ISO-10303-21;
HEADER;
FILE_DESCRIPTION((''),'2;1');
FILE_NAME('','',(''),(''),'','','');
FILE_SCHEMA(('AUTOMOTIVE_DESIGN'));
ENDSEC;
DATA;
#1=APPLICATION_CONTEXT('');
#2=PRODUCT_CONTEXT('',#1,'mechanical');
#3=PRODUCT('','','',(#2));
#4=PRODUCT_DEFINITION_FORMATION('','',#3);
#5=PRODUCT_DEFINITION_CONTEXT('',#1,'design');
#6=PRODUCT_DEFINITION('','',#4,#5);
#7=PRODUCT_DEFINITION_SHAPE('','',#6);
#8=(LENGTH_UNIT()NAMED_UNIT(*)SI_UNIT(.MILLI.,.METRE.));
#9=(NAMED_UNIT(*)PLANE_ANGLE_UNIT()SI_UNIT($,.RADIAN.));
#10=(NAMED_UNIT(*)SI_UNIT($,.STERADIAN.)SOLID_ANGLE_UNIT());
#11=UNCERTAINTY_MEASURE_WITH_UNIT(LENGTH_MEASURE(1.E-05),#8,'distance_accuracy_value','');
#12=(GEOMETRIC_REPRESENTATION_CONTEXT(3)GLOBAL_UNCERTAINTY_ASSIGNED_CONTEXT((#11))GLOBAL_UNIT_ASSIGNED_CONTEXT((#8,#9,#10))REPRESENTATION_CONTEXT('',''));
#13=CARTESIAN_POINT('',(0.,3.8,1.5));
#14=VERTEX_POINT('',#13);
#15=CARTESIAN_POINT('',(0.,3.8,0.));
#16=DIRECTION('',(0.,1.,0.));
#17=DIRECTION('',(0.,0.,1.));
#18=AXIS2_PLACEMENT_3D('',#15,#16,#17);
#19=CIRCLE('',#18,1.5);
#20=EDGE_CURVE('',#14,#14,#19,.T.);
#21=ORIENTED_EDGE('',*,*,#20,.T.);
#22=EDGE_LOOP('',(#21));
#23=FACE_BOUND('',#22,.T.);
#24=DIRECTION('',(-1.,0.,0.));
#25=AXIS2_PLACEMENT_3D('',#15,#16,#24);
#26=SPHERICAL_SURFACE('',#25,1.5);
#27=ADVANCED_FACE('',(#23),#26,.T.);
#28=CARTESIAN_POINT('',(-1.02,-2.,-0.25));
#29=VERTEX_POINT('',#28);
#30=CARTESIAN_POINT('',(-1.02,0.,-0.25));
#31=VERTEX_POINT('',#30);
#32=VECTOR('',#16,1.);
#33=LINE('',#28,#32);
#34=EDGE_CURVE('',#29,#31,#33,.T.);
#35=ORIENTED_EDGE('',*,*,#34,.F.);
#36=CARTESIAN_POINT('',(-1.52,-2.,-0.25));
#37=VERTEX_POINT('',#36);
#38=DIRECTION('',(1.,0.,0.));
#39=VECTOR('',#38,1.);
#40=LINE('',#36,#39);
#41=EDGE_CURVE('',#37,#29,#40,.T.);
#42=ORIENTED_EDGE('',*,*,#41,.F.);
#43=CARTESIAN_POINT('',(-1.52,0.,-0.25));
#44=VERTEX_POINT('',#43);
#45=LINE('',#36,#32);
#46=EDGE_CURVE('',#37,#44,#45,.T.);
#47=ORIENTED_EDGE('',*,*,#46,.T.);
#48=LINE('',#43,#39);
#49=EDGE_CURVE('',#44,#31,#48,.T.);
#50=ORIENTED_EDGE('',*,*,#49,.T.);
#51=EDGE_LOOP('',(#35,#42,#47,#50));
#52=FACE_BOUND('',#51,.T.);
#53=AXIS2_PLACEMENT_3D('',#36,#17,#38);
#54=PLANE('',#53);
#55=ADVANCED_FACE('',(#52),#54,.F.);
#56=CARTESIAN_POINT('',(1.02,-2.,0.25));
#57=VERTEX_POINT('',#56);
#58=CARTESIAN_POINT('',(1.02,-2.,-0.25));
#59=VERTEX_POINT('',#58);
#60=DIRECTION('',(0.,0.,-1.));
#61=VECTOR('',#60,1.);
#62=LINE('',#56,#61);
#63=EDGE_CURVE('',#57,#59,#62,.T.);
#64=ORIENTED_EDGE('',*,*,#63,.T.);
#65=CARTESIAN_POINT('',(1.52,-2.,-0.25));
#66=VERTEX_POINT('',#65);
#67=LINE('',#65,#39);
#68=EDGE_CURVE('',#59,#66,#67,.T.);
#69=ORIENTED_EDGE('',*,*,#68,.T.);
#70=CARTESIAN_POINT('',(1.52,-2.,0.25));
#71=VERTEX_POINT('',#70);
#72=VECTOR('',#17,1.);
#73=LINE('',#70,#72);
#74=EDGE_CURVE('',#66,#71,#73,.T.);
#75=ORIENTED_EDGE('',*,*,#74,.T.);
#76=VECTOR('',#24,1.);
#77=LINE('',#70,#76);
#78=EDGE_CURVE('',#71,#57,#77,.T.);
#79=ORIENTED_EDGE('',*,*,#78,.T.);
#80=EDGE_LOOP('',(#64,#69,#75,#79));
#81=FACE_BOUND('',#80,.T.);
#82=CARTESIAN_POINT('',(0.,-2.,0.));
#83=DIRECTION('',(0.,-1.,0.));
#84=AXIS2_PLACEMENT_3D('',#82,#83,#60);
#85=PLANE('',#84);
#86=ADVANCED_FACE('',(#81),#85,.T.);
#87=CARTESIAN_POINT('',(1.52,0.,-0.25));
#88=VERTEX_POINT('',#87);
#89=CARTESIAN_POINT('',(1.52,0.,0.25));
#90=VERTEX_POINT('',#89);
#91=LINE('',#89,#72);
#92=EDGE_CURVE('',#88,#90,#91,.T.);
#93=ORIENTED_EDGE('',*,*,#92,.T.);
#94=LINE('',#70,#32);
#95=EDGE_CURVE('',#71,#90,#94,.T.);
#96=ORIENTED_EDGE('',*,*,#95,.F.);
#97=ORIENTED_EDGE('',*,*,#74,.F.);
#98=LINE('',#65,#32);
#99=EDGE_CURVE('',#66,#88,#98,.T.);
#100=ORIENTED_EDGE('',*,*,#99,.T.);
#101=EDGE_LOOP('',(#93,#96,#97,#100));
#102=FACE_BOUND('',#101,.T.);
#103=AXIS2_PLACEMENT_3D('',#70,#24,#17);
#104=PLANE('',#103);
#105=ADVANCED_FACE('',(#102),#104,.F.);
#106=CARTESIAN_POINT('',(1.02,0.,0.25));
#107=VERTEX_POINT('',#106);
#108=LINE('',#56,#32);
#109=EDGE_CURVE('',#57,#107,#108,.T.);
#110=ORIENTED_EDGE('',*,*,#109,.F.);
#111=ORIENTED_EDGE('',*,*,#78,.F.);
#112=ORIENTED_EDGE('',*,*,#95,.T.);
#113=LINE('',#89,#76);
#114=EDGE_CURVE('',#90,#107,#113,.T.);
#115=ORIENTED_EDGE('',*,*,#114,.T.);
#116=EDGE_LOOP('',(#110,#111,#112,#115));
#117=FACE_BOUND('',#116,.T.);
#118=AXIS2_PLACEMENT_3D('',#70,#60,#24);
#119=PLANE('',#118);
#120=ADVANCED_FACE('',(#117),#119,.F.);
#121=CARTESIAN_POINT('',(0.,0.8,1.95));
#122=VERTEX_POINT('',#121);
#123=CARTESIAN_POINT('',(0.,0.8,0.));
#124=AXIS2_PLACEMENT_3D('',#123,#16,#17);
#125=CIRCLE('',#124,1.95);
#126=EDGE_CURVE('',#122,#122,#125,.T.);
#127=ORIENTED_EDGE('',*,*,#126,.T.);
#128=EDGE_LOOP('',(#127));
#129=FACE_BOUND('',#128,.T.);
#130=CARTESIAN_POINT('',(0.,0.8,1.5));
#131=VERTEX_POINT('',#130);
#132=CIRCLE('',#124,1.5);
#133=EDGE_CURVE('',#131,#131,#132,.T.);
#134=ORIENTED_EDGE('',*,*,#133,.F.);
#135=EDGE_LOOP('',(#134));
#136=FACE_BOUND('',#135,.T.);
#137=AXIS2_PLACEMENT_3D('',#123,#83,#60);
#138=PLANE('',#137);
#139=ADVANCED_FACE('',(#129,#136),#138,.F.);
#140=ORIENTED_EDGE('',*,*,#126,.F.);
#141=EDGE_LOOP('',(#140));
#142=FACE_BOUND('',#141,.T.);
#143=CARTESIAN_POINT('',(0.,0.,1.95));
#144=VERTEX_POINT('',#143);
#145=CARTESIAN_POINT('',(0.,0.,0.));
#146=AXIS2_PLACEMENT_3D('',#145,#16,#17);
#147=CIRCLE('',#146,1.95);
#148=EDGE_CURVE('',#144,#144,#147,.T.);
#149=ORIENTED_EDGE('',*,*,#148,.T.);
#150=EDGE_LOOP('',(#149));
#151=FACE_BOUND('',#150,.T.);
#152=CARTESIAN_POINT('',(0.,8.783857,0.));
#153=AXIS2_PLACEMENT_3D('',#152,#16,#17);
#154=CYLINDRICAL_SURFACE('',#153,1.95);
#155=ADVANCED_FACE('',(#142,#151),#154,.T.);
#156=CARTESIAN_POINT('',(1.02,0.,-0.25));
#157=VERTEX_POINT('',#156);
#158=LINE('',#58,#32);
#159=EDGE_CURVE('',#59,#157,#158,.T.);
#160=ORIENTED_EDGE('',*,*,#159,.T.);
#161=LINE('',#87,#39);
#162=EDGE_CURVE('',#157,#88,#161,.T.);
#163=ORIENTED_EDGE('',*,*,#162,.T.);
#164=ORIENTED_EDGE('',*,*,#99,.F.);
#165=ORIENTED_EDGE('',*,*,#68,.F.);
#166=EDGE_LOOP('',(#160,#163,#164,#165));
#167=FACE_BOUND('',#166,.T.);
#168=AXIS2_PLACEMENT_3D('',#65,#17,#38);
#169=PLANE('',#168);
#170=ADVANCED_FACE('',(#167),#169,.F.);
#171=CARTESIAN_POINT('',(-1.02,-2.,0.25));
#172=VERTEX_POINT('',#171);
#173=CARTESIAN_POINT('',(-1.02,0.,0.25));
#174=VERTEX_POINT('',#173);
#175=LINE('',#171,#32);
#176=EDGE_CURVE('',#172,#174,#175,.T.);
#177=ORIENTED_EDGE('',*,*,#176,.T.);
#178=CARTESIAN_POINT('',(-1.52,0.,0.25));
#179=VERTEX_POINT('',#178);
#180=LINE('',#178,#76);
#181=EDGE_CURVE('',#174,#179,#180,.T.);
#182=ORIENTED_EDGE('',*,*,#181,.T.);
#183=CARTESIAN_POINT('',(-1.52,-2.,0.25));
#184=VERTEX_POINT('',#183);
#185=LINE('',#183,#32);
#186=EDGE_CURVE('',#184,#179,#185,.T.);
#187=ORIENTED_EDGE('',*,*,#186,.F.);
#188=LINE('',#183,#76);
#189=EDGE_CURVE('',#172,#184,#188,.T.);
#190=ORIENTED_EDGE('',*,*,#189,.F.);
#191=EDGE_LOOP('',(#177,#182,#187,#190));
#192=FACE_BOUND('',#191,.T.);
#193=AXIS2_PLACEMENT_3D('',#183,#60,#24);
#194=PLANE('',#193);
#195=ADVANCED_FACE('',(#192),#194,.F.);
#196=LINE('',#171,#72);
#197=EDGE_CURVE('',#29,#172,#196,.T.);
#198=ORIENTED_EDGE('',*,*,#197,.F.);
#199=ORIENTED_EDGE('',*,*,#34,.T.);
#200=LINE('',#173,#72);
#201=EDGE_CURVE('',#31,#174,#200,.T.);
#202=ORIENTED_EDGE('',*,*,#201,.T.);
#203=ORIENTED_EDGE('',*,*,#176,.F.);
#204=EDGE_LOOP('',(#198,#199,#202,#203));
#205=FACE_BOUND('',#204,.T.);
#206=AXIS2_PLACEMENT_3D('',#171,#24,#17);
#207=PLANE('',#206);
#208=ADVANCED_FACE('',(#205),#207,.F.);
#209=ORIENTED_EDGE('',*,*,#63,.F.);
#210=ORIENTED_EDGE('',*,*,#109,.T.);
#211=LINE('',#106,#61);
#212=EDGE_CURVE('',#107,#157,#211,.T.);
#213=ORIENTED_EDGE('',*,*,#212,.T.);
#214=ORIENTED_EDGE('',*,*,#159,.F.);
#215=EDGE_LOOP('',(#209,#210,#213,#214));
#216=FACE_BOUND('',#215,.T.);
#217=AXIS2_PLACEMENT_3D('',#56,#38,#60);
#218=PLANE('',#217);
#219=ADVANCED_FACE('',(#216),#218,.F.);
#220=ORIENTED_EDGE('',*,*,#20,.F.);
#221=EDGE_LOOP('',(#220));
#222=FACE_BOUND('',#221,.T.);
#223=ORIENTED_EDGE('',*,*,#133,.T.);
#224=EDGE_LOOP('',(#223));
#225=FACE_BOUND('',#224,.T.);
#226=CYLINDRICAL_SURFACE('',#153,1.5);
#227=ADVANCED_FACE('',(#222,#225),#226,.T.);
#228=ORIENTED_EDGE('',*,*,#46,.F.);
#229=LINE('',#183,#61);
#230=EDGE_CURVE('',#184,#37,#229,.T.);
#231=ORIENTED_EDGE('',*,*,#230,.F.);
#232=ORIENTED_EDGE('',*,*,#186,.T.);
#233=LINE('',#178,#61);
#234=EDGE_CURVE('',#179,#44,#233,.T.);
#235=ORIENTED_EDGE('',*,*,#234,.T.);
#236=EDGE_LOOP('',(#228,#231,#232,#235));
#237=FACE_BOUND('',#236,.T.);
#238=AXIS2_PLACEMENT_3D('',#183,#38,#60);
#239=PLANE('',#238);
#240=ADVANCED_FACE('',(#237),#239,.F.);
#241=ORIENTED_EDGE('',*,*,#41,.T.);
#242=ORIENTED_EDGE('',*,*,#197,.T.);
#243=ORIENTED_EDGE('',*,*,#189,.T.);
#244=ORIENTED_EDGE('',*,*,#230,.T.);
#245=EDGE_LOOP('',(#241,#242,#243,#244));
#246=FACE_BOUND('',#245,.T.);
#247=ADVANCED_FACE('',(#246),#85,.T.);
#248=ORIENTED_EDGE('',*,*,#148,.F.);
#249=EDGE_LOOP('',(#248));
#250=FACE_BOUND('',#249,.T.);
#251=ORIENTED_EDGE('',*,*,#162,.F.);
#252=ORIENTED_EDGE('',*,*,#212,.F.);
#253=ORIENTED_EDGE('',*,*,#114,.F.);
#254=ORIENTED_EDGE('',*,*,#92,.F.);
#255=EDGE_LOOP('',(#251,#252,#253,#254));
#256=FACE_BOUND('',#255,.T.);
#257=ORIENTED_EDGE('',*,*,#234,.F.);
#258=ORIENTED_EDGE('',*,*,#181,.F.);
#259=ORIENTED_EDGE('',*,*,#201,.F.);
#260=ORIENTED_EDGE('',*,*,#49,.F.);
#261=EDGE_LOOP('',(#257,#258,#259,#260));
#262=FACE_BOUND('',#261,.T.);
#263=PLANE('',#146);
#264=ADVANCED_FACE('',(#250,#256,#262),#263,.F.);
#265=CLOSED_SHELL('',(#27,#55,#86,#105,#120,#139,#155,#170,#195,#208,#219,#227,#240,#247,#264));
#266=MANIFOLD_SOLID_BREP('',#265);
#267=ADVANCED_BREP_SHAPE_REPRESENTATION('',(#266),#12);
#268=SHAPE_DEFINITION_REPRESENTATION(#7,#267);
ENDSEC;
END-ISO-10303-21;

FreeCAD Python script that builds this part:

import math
import FreeCAD as App
import Part
import Sketcher

V = App.Vector
Q = App.Units.Quantity


def add_polygon(sketch, points):
    """Adds a closed chain of lines whose ends are joined by coincident constraints."""
    first, n = sketch.GeometryCount, len(points)
    for a, b in zip(points, points[1:] + points[:1]):
        sketch.addGeometry(Part.LineSegment(App.Vector(*a, 0), App.Vector(*b, 0)), False)
    for i in range(n):
        sketch.addConstraint(Sketcher.Constraint("Coincident", first + i, 2, first + (i + 1) % n, 1))

doc = App.newDocument("Part")
body = doc.addObject("PartDesign::Body", "Body")

# Sketch on XY plane
sketch1 = body.newObject("Sketcher::SketchObject", "Sketch")
sketch1.AttachmentSupport = (doc.getObject("XY_Plane"), [""])
sketch1.MapMode = "FlatFace"
sketch1.addGeometry(Part.ArcOfCircle(Part.Circle(V(0, 3.8, 0), V(0, 0, 1), 1.5), math.radians(90), math.radians(180)), False)
sketch1.addGeometry(Part.LineSegment(V(-1.5, 3.8, 0), V(-1.5, 0.8, 0)), False)
sketch1.addGeometry(Part.LineSegment(V(-1.5, 0.8, 0), V(-1.95, 0.8, 0)), False)
sketch1.addGeometry(Part.LineSegment(V(-1.95, 0.8, 0), V(-1.95, 0, 0)), False)
sketch1.addGeometry(Part.LineSegment(V(-1.95, 0, 0), V(0, 0, 0)), False)
sketch1.addGeometry(Part.LineSegment(V(0, 0, 0), V(0, 5.3, 0)), False)
sketch1.addConstraint(Sketcher.Constraint("Tangent", 0, 2, 1, 1))
sketch1.addConstraint(Sketcher.Constraint("Coincident", 1, 2, 2, 1))
sketch1.addConstraint(Sketcher.Constraint("Coincident", 2, 2, 3, 1))
sketch1.addConstraint(Sketcher.Constraint("Coincident", 3, 2, 4, 1))
sketch1.addConstraint(Sketcher.Constraint("Coincident", 4, 2, 5, 1))
sketch1.addConstraint(Sketcher.Constraint("Coincident", 5, 2, 0, 1))
sketch1.addConstraint(Sketcher.Constraint("Vertical", 1))
sketch1.addConstraint(Sketcher.Constraint("Horizontal", 2))
sketch1.addConstraint(Sketcher.Constraint("Vertical", 3))
sketch1.addConstraint(Sketcher.Constraint("Horizontal", 4))
sketch1.addConstraint(Sketcher.Constraint("Vertical", 5))
sketch1.addConstraint(Sketcher.Constraint("Coincident", 4, 2, -1, 1))
sketch1.addConstraint(Sketcher.Constraint("PointOnObject", 0, 3, -2))
sketch1.addConstraint(Sketcher.Constraint("Radius", 0, Q("1.5 mm")))
sketch1.addConstraint(Sketcher.Constraint("DistanceY", 1, 2, 1, 1, Q("3 mm")))
sketch1.addConstraint(Sketcher.Constraint("DistanceY", 3, 2, 3, 1, Q("0.8 mm")))
sketch1.addConstraint(Sketcher.Constraint("DistanceX", 2, 2, 2, 1, Q("0.45 mm")))
revolution = body.newObject("PartDesign::Revolution", "Revolution")
revolution.Profile = sketch1
revolution.ReferenceAxis = (sketch1, ["V_Axis"])
revolution.Angle = 360

# Sketch on XZ plane
sketch2 = body.newObject("Sketcher::SketchObject", "Sketch001")
sketch2.AttachmentSupport = (doc.getObject("XZ_Plane"), [""])
sketch2.MapMode = "FlatFace"
add_polygon(sketch2, [(-1.5, 0.2), (-1.5, -0.2), (-1, -0.2), (-1, 0.2)])  # lines 0-3
add_polygon(sketch2, [(1, 0.2), (1, -0.2), (1.5, -0.2), (1.5, 0.2)])  # lines 4-7
sketch2.addConstraint(Sketcher.Constraint("Vertical", 0))
sketch2.addConstraint(Sketcher.Constraint("Horizontal", 1))
sketch2.addConstraint(Sketcher.Constraint("Vertical", 2))
sketch2.addConstraint(Sketcher.Constraint("Horizontal", 3))
sketch2.addConstraint(Sketcher.Constraint("Vertical", 4))
sketch2.addConstraint(Sketcher.Constraint("Horizontal", 5))
sketch2.addConstraint(Sketcher.Constraint("Vertical", 6))
sketch2.addConstraint(Sketcher.Constraint("Horizontal", 7))
sketch2.addConstraint(Sketcher.Constraint("Symmetric", 2, 2, 4, 2, -1, 1))
sketch2.addConstraint(Sketcher.Constraint("Symmetric", 0, 2, 6, 2, -1, 1))
sketch2.addConstraint(Sketcher.Constraint("Horizontal", 1, 2, 4, 2))
sketch2.addConstraint(Sketcher.Constraint("Equal", 7, 0))
sketch2.addConstraint(Sketcher.Constraint("DistanceX", 1, 1, 1, 2, Q("0.5 mm")))
sketch2.addConstraint(Sketcher.Constraint("DistanceX", 0, 2, -1, 1, Q("1.52 mm")))
pad1 = body.newObject("PartDesign::Pad", "Pad")
pad1.Profile = sketch2
pad1.Length = 2

doc.recompute()
